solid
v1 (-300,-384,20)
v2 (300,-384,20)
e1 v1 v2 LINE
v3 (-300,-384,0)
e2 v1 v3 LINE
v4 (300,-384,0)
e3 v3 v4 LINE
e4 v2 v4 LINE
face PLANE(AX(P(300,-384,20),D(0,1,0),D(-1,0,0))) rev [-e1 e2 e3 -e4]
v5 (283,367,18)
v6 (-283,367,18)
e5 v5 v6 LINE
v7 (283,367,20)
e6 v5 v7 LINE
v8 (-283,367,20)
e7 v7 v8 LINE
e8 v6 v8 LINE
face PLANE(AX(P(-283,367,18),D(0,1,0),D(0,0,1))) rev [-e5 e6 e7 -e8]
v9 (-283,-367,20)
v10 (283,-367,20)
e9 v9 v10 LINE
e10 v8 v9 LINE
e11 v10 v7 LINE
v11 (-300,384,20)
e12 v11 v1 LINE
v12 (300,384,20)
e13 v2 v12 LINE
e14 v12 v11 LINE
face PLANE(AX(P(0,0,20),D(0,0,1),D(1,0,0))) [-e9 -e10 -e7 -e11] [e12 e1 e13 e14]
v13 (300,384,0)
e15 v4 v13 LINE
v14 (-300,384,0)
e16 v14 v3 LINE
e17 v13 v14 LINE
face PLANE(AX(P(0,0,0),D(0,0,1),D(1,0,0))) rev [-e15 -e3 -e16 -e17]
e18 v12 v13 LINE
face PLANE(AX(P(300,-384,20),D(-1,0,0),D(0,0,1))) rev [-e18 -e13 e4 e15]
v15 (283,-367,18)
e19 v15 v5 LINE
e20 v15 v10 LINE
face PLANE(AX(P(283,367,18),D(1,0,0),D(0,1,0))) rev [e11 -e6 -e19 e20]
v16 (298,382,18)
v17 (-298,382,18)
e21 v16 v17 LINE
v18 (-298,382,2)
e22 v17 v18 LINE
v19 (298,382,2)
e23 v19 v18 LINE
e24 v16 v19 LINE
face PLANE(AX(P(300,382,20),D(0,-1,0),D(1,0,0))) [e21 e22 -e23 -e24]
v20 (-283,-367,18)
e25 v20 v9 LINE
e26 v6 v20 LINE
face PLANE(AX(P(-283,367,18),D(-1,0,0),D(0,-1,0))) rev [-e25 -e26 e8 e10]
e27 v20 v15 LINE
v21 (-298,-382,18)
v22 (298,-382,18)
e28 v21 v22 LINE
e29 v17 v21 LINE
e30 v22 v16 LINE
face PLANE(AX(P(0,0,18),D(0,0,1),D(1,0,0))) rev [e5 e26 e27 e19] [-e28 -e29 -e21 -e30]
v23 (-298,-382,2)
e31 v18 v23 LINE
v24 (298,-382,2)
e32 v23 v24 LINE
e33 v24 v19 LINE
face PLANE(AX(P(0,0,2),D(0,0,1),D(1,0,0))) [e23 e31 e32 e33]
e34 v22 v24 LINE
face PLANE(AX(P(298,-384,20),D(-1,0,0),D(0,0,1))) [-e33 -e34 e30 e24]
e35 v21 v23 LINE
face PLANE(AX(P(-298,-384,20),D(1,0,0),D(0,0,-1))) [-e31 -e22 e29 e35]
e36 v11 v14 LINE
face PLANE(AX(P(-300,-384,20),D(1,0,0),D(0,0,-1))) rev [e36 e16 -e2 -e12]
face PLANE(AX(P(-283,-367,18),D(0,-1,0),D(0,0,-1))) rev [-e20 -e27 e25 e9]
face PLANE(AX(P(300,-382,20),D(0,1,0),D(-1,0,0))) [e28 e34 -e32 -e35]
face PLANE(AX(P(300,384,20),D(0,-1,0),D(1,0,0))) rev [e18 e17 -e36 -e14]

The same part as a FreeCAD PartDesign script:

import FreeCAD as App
import Part
import Sketcher
Q = App.Units.Quantity


def faces_at(feature, points):
    """Names of the faces that lie closest to the given points."""
    faces = feature.Shape.Faces
    near = lambda p: min(range(len(faces)), key=lambda i: faces[i].distToShape(Part.Vertex(*p))[0])
    return sorted({f"Face{near(p) + 1}" for p in points})


def add_polygon(sketch, points):
    """Adds a closed chain of lines whose ends are joined by coincident constraints."""
    first, n = sketch.GeometryCount, len(points)
    for a, b in zip(points, points[1:] + points[:1]):
        sketch.addGeometry(Part.LineSegment(App.Vector(*a, 0), App.Vector(*b, 0)), False)
    for i in range(n):
        sketch.addConstraint(Sketcher.Constraint("Coincident", first + i, 2, first + (i + 1) % n, 1))

doc = App.newDocument("Part")
body = doc.addObject("PartDesign::Body", "Body")

sketch1 = doc.addObject("Sketcher::SketchObject", "Sketch")
body.addObject(sketch1)
sketch1.AttachmentSupport = (doc.XY_Plane, [""])
sketch1.MapMode = "FlatFace"
add_polygon(sketch1, [(-300, 384), (-300, -384), (300, -384), (300, 384)])
sketch1.addConstraint([
    Sketcher.Constraint("Vertical", 0),
    Sketcher.Constraint("Horizontal", 1),
    Sketcher.Constraint("Vertical", 2),
    Sketcher.Constraint("Horizontal", 3),
    Sketcher.Constraint("Symmetric", 0, 2, 2, 2, -1, 1),
    Sketcher.Constraint("DistanceX", 1, 1, 1, 2, Q("600 mm")),
    Sketcher.Constraint("DistanceY", 0, 2, 0, 1, Q("768 mm")),
])
pad1 = doc.addObject("PartDesign::Pad", "Pad")
body.addObject(pad1)
pad1.Profile = sketch1
pad1.Length = 20
doc.recompute()

thickness = doc.addObject("PartDesign::Thickness", "Thickness")
body.addObject(thickness)
thickness.Base = (pad1, faces_at(pad1, [(0, 0, 20)]))
thickness.Value = 2
thickness.Reversed = True
thickness.Join = "Intersection"

sketch2 = doc.addObject("Sketcher::SketchObject", "Sketch001")
body.addObject(sketch2)
sketch2.AttachmentSupport = (doc.XY_Plane, [""])
sketch2.MapMode = "FlatFace"
sketch2.AttachmentOffset = App.Placement(App.Vector(0, 0, 20), App.Rotation())
add_polygon(sketch2, [(-298, 382), (-298, -382), (298, -382), (298, 382)])
add_polygon(sketch2, [(283, -367), (-283, -367), (-283, 367), (283, 367)])
sketch2.addConstraint([
    Sketcher.Constraint("Vertical", 0),
    Sketcher.Constraint("Horizontal", 1),
    Sketcher.Constraint("Vertical", 2),
    Sketcher.Constraint("Horizontal", 3),
    Sketcher.Constraint("Horizontal", 4),
    Sketcher.Constraint("Vertical", 5),
    Sketcher.Constraint("Horizontal", 6),
    Sketcher.Constraint("Vertical", 7),
    Sketcher.Constraint("Symmetric", 0, 2, 2, 2, -1, 1),
    Sketcher.Constraint("Symmetric", 4, 2, 6, 2, -1, 1),
    Sketcher.Constraint("DistanceX", 1, 1, 1, 2, Q("596 mm")),
    Sketcher.Constraint("DistanceX", 4, 2, 4, 1, Q("566 mm")),
    Sketcher.Constraint("DistanceY", 0, 2, 0, 1, Q("764 mm")),
    Sketcher.Constraint("DistanceY", 5, 1, 5, 2, Q("734 mm")),
])
pad2 = doc.addObject("PartDesign::Pad", "Pad001")
body.addObject(pad2)
pad2.Profile = sketch2
pad2.Length = 2
pad2.Reversed = True

doc.recompute()
